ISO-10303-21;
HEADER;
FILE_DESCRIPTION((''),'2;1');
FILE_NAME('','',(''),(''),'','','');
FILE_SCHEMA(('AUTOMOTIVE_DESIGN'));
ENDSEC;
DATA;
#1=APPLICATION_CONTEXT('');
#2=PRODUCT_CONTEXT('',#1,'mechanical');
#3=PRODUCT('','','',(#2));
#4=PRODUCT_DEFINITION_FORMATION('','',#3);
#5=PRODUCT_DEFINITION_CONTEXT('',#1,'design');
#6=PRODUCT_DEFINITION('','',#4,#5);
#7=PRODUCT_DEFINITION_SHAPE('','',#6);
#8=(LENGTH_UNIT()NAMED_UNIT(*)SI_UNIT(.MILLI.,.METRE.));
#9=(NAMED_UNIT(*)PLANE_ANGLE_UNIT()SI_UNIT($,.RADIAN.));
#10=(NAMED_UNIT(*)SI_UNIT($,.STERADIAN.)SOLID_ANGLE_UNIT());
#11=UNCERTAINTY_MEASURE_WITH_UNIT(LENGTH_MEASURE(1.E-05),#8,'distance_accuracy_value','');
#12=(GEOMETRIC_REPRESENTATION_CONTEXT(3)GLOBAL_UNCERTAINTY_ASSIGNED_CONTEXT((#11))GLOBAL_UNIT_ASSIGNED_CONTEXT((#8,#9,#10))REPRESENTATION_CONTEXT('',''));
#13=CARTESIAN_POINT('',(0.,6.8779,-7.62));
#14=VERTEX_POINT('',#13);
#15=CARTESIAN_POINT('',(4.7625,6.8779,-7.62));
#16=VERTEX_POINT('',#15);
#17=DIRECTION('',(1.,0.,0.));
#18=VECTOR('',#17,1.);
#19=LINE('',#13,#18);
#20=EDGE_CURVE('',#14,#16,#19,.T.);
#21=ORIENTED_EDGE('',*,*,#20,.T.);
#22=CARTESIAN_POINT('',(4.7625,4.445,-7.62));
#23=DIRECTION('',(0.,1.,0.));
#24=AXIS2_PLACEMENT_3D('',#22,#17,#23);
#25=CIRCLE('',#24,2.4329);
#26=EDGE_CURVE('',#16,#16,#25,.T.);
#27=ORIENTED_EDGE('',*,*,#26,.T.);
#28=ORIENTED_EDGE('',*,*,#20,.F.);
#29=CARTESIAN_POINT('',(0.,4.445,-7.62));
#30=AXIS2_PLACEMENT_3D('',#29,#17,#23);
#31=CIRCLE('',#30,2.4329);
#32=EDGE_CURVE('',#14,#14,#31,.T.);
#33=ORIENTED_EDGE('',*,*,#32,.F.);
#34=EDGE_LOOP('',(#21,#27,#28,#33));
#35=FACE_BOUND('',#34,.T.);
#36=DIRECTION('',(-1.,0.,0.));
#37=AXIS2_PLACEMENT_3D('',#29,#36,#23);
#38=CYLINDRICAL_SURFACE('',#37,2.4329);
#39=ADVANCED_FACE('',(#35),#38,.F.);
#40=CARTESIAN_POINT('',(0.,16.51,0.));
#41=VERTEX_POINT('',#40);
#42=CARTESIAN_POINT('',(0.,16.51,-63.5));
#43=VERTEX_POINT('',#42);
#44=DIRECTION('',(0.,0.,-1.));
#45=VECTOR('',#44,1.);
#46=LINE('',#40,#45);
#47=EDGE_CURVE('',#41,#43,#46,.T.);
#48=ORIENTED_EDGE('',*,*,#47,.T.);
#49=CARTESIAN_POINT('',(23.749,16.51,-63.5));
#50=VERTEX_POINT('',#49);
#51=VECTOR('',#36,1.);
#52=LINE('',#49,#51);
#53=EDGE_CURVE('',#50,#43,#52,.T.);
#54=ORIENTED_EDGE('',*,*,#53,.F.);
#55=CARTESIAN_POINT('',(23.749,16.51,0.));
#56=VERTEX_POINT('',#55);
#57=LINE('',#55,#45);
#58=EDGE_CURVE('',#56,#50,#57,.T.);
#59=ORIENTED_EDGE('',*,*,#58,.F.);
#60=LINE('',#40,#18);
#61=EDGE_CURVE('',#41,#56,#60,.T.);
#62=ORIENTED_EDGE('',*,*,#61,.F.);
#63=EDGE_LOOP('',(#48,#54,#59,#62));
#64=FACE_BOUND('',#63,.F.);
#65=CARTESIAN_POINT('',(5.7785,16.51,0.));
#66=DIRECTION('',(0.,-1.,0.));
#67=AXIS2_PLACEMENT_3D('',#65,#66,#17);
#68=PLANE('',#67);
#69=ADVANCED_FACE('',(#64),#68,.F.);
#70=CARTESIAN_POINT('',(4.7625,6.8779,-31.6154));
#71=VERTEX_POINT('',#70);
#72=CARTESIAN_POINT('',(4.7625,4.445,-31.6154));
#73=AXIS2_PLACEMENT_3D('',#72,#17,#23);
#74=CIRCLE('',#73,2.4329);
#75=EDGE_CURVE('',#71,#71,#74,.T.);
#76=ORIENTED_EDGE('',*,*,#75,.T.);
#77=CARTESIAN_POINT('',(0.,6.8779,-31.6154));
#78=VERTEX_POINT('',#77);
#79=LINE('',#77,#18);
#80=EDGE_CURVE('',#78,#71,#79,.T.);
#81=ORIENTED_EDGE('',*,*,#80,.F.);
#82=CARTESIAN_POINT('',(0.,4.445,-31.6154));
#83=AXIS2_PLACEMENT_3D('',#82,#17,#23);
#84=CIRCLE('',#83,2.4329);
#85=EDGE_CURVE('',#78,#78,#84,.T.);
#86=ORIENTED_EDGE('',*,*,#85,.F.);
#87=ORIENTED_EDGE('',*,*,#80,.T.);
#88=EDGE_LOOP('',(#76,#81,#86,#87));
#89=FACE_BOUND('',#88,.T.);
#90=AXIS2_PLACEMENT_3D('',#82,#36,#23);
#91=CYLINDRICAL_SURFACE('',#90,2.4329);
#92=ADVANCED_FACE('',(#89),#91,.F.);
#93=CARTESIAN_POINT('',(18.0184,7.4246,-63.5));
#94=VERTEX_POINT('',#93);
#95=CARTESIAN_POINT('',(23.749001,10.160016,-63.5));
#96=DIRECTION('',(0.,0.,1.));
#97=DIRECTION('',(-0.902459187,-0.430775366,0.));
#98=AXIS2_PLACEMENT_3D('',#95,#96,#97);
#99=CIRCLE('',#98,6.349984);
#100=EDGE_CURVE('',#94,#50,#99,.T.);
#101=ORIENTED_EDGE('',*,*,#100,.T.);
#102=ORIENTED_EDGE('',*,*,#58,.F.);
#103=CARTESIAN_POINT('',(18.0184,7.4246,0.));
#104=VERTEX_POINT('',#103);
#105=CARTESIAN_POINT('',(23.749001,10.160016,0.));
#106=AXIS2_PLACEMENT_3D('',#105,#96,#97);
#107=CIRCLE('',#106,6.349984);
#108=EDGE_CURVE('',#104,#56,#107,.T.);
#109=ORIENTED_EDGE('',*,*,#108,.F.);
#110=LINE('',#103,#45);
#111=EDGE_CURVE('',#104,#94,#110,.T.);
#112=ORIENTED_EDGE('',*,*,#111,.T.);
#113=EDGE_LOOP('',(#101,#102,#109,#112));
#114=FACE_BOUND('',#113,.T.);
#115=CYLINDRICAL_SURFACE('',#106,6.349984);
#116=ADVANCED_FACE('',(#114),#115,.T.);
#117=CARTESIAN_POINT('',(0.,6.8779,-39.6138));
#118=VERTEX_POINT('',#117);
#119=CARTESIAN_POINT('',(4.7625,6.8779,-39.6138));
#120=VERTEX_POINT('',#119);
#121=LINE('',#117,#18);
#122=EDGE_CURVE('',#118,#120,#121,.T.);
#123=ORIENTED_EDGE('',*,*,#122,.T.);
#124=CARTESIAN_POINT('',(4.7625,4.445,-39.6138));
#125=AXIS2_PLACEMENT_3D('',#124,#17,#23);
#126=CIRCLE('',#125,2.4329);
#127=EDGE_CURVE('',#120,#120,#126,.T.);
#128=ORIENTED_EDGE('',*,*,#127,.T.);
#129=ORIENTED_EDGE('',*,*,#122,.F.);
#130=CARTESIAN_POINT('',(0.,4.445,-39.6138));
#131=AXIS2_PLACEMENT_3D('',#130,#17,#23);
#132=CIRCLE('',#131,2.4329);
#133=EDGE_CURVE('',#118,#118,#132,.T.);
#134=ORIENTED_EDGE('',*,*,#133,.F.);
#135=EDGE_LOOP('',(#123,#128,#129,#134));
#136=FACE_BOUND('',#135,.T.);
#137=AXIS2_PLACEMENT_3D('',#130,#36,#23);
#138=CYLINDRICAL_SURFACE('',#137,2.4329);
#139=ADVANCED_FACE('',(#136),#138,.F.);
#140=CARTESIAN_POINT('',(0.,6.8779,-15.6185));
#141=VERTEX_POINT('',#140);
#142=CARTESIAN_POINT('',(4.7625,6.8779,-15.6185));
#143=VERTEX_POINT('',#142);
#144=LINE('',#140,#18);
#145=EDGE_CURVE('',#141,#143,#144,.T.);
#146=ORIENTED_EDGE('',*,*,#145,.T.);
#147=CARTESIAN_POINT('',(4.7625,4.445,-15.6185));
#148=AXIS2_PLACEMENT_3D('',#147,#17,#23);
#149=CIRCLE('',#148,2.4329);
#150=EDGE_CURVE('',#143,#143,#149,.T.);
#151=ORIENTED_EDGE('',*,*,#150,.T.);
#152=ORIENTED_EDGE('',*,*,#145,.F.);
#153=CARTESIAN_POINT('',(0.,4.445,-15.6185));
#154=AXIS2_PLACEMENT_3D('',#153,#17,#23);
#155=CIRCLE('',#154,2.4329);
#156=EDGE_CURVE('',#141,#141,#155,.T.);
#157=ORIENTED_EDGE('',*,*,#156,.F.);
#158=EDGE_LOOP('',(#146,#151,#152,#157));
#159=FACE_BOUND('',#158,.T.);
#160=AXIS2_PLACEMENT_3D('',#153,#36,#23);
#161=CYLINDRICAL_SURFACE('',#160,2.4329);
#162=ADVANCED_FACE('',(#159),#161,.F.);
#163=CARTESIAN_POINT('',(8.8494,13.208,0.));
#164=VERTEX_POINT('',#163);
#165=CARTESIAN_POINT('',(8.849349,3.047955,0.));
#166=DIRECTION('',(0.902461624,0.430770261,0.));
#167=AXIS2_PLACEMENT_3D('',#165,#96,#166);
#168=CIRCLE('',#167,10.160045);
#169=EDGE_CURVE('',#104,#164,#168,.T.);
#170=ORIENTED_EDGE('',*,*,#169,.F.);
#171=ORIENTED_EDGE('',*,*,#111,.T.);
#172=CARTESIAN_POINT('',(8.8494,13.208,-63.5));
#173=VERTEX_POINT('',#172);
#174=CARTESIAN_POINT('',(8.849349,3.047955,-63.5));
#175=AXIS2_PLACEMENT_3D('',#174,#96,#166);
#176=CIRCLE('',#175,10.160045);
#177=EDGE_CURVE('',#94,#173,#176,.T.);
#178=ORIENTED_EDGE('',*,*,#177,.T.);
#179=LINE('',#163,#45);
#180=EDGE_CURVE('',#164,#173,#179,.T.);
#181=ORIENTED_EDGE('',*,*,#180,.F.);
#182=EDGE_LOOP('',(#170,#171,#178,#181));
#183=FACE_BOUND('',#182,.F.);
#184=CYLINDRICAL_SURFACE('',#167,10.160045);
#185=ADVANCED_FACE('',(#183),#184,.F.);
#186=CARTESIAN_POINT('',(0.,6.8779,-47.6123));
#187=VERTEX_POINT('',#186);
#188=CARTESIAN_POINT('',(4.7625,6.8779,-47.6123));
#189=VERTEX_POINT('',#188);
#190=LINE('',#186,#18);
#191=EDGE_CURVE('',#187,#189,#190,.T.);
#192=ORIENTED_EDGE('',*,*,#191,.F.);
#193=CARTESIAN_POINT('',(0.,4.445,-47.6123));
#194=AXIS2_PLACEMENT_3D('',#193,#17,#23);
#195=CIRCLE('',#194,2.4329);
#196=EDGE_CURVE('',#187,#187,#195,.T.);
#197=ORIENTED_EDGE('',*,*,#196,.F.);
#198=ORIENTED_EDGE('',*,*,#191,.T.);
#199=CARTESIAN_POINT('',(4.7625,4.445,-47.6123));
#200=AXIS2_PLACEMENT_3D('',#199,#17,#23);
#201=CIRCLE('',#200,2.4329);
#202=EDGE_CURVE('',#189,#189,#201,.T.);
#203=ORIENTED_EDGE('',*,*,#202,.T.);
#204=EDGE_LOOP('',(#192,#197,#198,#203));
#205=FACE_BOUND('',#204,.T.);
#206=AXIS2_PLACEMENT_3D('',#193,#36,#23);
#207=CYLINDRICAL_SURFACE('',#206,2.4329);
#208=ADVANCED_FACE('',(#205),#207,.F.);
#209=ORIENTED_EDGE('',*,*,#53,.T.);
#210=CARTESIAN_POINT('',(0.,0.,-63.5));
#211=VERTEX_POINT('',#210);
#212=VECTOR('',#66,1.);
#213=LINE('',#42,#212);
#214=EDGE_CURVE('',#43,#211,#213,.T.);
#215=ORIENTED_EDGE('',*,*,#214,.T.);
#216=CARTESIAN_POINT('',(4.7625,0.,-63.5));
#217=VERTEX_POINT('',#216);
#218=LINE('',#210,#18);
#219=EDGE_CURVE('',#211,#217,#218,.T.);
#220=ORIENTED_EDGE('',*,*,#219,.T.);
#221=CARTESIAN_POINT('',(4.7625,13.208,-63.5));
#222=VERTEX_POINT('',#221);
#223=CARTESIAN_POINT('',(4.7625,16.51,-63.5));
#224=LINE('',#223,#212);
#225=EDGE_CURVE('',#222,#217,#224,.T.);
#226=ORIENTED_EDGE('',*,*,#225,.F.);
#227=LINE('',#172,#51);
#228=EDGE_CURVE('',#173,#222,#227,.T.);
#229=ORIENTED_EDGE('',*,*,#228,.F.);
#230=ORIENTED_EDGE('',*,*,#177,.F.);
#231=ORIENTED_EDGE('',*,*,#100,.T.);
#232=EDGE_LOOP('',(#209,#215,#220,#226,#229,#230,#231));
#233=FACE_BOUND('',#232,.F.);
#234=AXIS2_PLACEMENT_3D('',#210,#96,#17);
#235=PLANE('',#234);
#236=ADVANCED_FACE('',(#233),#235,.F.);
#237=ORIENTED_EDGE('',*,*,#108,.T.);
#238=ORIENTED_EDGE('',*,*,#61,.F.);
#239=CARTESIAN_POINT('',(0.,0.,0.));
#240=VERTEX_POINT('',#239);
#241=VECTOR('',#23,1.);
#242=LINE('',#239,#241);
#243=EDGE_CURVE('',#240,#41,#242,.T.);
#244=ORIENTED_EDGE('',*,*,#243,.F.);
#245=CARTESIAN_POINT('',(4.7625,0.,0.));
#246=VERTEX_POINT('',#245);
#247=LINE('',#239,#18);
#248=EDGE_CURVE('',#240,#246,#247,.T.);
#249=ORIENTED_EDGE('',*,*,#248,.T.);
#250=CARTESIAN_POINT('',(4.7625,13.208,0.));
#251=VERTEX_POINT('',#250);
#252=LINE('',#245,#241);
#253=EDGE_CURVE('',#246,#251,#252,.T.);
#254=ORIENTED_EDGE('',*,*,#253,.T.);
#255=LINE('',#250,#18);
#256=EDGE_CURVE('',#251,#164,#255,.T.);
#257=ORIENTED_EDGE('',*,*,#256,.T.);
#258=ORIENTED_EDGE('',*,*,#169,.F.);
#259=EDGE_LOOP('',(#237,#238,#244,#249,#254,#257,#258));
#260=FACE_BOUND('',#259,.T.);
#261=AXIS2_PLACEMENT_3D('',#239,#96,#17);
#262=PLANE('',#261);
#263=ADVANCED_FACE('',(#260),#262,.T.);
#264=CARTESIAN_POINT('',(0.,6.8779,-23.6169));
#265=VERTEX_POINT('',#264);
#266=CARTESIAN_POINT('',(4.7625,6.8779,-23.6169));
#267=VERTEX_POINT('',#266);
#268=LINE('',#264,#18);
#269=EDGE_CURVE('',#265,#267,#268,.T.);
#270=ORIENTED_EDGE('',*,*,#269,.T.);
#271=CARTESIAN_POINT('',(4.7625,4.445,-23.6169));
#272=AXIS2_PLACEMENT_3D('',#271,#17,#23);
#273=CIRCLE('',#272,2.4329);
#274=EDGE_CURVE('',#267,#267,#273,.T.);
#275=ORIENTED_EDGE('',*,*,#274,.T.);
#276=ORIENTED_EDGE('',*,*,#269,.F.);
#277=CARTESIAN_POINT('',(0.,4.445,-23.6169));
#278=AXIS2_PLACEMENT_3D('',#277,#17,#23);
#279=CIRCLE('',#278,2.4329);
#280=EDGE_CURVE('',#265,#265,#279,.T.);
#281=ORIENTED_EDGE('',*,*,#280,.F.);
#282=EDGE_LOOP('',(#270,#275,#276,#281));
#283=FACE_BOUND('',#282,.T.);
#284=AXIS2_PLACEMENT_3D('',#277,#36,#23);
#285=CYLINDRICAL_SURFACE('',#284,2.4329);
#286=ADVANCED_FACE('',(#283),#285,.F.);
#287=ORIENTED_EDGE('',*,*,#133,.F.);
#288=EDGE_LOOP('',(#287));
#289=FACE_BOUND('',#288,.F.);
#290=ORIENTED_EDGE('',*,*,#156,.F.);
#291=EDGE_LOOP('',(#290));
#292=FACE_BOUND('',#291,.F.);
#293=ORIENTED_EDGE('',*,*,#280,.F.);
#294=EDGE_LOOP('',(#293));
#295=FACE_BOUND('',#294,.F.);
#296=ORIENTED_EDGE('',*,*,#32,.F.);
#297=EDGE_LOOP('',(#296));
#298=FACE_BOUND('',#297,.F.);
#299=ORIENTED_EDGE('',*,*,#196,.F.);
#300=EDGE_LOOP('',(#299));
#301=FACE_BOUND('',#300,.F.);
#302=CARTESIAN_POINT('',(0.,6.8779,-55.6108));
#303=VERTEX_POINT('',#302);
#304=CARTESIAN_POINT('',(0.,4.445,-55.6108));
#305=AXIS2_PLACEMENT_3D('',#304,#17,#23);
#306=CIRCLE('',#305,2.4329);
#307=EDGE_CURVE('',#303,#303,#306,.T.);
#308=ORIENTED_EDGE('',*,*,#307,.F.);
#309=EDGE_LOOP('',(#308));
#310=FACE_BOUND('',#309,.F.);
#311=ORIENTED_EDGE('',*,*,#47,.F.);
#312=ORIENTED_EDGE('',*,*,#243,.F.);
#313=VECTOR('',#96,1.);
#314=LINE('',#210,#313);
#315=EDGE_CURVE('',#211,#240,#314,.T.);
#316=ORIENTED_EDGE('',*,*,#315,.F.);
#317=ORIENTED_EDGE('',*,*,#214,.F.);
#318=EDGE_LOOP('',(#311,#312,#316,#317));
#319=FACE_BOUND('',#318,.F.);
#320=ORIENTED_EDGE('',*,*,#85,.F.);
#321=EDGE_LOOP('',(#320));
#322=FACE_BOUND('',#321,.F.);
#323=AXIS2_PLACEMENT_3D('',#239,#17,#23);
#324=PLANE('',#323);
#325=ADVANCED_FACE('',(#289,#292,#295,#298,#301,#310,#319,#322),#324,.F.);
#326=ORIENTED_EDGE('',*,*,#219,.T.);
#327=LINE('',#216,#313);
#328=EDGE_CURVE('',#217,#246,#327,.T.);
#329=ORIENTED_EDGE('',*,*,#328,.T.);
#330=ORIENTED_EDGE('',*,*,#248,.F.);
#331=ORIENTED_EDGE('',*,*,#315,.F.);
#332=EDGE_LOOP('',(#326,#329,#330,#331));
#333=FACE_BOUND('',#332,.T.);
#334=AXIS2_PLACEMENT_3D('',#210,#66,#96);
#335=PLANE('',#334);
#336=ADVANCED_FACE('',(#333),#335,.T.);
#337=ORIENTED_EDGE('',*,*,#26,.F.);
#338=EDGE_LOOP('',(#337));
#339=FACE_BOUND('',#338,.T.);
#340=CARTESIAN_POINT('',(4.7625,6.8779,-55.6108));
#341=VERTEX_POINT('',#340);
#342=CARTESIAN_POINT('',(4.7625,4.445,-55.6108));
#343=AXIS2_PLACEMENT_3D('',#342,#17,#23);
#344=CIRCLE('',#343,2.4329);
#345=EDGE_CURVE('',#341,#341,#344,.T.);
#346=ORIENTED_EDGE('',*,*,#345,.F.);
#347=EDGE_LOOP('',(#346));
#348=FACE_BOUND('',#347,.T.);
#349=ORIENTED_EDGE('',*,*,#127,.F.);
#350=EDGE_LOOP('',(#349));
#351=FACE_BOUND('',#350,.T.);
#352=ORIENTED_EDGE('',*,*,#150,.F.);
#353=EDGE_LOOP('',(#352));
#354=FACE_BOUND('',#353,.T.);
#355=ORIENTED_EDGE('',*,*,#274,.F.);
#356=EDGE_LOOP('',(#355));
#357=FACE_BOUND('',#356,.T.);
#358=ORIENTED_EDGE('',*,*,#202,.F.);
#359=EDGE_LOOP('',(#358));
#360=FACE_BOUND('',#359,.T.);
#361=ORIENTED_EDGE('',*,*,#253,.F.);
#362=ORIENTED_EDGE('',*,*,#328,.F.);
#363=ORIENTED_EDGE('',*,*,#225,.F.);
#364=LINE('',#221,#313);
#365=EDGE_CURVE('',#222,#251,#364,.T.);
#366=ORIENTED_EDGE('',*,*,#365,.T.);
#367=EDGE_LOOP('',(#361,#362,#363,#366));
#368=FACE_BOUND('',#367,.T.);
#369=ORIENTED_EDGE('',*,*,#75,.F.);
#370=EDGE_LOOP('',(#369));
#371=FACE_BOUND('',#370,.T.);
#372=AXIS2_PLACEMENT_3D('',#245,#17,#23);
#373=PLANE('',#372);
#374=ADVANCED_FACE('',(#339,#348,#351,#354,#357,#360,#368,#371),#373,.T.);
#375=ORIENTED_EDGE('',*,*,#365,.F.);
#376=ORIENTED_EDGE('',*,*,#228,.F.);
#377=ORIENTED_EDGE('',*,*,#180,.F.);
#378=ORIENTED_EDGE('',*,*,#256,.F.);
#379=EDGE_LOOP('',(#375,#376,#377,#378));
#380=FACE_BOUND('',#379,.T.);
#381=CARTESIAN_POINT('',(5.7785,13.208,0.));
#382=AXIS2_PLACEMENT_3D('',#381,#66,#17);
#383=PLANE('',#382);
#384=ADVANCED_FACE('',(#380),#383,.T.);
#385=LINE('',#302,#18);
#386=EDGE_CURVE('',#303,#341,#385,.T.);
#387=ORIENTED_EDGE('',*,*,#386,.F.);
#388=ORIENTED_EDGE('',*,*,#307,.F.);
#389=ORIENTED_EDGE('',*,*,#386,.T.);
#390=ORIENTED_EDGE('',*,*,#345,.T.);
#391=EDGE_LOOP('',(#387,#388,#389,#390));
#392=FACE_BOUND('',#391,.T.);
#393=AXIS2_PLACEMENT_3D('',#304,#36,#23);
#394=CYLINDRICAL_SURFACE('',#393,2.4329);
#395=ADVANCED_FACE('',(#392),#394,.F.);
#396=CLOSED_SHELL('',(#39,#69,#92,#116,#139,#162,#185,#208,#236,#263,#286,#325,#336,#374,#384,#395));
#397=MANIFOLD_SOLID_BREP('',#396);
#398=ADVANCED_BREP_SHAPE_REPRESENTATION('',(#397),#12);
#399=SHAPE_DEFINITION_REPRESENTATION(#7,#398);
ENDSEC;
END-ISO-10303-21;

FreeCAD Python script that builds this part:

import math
import FreeCAD as App
import Part
import Sketcher

V = App.Vector
Q = App.Units.Quantity


def add_polygon(sketch, points):
    """Adds a closed chain of lines whose ends are joined by coincident constraints."""
    first, n = sketch.GeometryCount, len(points)
    for a, b in zip(points, points[1:] + points[:1]):
        sketch.addGeometry(Part.LineSegment(App.Vector(*a, 0), App.Vector(*b, 0)), False)
    for i in range(n):
        sketch.addConstraint(Sketcher.Constraint("Coincident", first + i, 2, first + (i + 1) % n, 1))

doc = App.newDocument("Part")
body = doc.addObject("PartDesign::Body", "Body")

sketch1 = body.newObject("Sketcher::SketchObject", "Sketch")
sketch1.AttachmentSupport = (doc.getObject("YZ_Plane"), [""])
sketch1.MapMode = "FlatFace"
add_polygon(sketch1, [(16.51, 0), (0, 0), (0, -63.5), (16.51, -63.5)])
sketch1.addGeometry(Part.Circle(V(4.445, -55.6108, 0), V(0, 0, 1), 2.4329), False)
sketch1.addGeometry(Part.Circle(V(4.445, -47.6123, 0), V(0, 0, 1), 2.4329), False)
sketch1.addGeometry(Part.Circle(V(4.445, -39.6138, 0), V(0, 0, 1), 2.4329), False)
sketch1.addGeometry(Part.Circle(V(4.445, -31.6154, 0), V(0, 0, 1), 2.4329), False)
sketch1.addGeometry(Part.Circle(V(4.445, -23.6169, 0), V(0, 0, 1), 2.4329), False)
sketch1.addGeometry(Part.Circle(V(4.445, -15.6185, 0), V(0, 0, 1), 2.4329), False)
sketch1.addGeometry(Part.Circle(V(4.445, -7.62, 0), V(0, 0, 1), 2.4329), False)
sketch1.addConstraint([
    Sketcher.Constraint("Horizontal", 0),
    Sketcher.Constraint("Vertical", 1),
    Sketcher.Constraint("Horizontal", 2),
    Sketcher.Constraint("Vertical", 3),
    Sketcher.Constraint("Coincident", 0, 2, -1, 1),
    Sketcher.Constraint("Equal", 4, 5),
    Sketcher.Constraint("Equal", 5, 6),
    Sketcher.Constraint("Equal", 6, 7),
    Sketcher.Constraint("Equal", 7, 8),
    Sketcher.Constraint("Equal", 8, 9),
    Sketcher.Constraint("Equal", 9, 10),
    Sketcher.Constraint("Vertical", 4, 3, 5, 3),
    Sketcher.Constraint("Vertical", 5, 3, 6, 3),
    Sketcher.Constraint("Vertical", 6, 3, 7, 3),
    Sketcher.Constraint("Vertical", 7, 3, 8, 3),
    Sketcher.Constraint("Vertical", 8, 3, 9, 3),
    Sketcher.Constraint("Vertical", 9, 3, 10, 3),
    Sketcher.Constraint("DistanceY", 1, 2, 1, 1, Q("2.5 in")),
    Sketcher.Constraint("DistanceX", 0, 2, 0, 1, Q("0.65 in")),
    Sketcher.Constraint("DistanceY", 10, 3, -1, 1, Q("0.3 in")),
    Sketcher.Constraint("DistanceY", 4, 3, 5, 3, Q("0.3149 in")),
    Sketcher.Constraint("DistanceY", 5, 3, 6, 3, Q("0.3149 in")),
    Sketcher.Constraint("DistanceY", 6, 3, 7, 3, Q("0.3149 in")),
    Sketcher.Constraint("DistanceY", 7, 3, 8, 3, Q("0.3149 in")),
    Sketcher.Constraint("DistanceY", 8, 3, 9, 3, Q("0.3149 in")),
    Sketcher.Constraint("DistanceY", 9, 3, 10, 3, Q("0.3149 in")),
    Sketcher.Constraint("Diameter", 4, Q("4.8658 mm")),
    Sketcher.Constraint("DistanceX", -1, 1, 4, 3, Q("0.175 in")),
])
pad1 = body.newObject("PartDesign::Pad", "Pad")
pad1.Profile = sketch1
pad1.Length = Q("0.1875 in")

sketch2 = body.newObject("Sketcher::SketchObject", "Sketch001")
sketch2.AttachmentSupport = (doc.getObject("YZ_Plane"), [""])
sketch2.MapMode = "FlatFace"
sketch2.AttachmentOffset = App.Placement(V(0, 0, 0.1875 * 25.4), App.Rotation())
add_polygon(sketch2, [(13.208, -63.5), (16.51, -63.5), (16.51, 0), (13.208, 0)])
sketch2.addConstraint([
    Sketcher.Constraint("Horizontal", 0),
    Sketcher.Constraint("Vertical", 1),
    Sketcher.Constraint("Horizontal", 2),
    Sketcher.Constraint("Vertical", 3),
    Sketcher.Constraint("PointOnObject", 1, 2, -1),
    Sketcher.Constraint("DistanceX", 0, 1, 0, 2, Q("0.13 in")),
    Sketcher.Constraint("DistanceY", 1, 1, 1, 2, Q("2.5 in")),
    Sketcher.Constraint("DistanceX", -1, 1, 0, 2, Q("0.65 in")),
])
pad2 = body.newObject("PartDesign::Pad", "Pad001")
pad2.Profile = sketch2
pad2.Length = Q("0.04 in")

sketch3 = body.newObject("Sketcher::SketchObject", "Sketch002")
sketch3.AttachmentSupport = (doc.getObject("XY_Plane"), [""])
sketch3.MapMode = "FlatFace"
sketch3.addGeometry([
    Part.LineSegment(V(23.749, 16.51, 0), V(5.7785, 16.51, 0)),
    Part.LineSegment(V(5.7785, 16.51, 0), V(5.7785, 13.208, 0)),
    Part.LineSegment(V(5.7785, 13.208, 0), V(8.8494, 13.208, 0)),
    Part.ArcOfCircle(Part.Circle(V(8.8494, 3.048, 0), V(0, 0, 1), 10.15998), math.radians(25.516346), math.radians(90)),
    Part.ArcOfCircle(Part.Circle(V(23.749, 10.16, 0), V(0, 0, 1), 6.349976), math.radians(-154.483354), math.radians(90)),
], False)
sketch3.addConstraint([
    Sketcher.Constraint("Coincident", 0, 2, 1, 1),
    Sketcher.Constraint("Coincident", 1, 2, 2, 1),
    Sketcher.Constraint("Tangent", 2, 2, 3, 2),
    Sketcher.Constraint("Tangent", 3, 1, 4, 1),
    Sketcher.Constraint("Tangent", 4, 2, 0, 1),
    Sketcher.Constraint("Horizontal", 0),
    Sketcher.Constraint("Vertical", 1),
    Sketcher.Constraint("Horizontal", 2),
    Sketcher.Constraint("Radius", 4, Q("0.25 in")),
    Sketcher.Constraint("Radius", 3, Q("0.4 in")),
    Sketcher.Constraint("DistanceX", -1, 1, 4, 3, Q("0.935 in")),
    Sketcher.Constraint("DistanceY", 1, 2, 1, 1, Q("0.13 in")),
    Sketcher.Constraint("DistanceY", -1, 1, 4, 3, Q("0.4 in")),
    Sketcher.Constraint("DistanceX", 0, 2, 0, 1, Q("0.7075 in")),
])
pad3 = body.newObject("PartDesign::Pad", "Pad002")
pad3.Profile = sketch3
pad3.Length = Q("2.5 in")
pad3.Reversed = True

doc.recompute()
